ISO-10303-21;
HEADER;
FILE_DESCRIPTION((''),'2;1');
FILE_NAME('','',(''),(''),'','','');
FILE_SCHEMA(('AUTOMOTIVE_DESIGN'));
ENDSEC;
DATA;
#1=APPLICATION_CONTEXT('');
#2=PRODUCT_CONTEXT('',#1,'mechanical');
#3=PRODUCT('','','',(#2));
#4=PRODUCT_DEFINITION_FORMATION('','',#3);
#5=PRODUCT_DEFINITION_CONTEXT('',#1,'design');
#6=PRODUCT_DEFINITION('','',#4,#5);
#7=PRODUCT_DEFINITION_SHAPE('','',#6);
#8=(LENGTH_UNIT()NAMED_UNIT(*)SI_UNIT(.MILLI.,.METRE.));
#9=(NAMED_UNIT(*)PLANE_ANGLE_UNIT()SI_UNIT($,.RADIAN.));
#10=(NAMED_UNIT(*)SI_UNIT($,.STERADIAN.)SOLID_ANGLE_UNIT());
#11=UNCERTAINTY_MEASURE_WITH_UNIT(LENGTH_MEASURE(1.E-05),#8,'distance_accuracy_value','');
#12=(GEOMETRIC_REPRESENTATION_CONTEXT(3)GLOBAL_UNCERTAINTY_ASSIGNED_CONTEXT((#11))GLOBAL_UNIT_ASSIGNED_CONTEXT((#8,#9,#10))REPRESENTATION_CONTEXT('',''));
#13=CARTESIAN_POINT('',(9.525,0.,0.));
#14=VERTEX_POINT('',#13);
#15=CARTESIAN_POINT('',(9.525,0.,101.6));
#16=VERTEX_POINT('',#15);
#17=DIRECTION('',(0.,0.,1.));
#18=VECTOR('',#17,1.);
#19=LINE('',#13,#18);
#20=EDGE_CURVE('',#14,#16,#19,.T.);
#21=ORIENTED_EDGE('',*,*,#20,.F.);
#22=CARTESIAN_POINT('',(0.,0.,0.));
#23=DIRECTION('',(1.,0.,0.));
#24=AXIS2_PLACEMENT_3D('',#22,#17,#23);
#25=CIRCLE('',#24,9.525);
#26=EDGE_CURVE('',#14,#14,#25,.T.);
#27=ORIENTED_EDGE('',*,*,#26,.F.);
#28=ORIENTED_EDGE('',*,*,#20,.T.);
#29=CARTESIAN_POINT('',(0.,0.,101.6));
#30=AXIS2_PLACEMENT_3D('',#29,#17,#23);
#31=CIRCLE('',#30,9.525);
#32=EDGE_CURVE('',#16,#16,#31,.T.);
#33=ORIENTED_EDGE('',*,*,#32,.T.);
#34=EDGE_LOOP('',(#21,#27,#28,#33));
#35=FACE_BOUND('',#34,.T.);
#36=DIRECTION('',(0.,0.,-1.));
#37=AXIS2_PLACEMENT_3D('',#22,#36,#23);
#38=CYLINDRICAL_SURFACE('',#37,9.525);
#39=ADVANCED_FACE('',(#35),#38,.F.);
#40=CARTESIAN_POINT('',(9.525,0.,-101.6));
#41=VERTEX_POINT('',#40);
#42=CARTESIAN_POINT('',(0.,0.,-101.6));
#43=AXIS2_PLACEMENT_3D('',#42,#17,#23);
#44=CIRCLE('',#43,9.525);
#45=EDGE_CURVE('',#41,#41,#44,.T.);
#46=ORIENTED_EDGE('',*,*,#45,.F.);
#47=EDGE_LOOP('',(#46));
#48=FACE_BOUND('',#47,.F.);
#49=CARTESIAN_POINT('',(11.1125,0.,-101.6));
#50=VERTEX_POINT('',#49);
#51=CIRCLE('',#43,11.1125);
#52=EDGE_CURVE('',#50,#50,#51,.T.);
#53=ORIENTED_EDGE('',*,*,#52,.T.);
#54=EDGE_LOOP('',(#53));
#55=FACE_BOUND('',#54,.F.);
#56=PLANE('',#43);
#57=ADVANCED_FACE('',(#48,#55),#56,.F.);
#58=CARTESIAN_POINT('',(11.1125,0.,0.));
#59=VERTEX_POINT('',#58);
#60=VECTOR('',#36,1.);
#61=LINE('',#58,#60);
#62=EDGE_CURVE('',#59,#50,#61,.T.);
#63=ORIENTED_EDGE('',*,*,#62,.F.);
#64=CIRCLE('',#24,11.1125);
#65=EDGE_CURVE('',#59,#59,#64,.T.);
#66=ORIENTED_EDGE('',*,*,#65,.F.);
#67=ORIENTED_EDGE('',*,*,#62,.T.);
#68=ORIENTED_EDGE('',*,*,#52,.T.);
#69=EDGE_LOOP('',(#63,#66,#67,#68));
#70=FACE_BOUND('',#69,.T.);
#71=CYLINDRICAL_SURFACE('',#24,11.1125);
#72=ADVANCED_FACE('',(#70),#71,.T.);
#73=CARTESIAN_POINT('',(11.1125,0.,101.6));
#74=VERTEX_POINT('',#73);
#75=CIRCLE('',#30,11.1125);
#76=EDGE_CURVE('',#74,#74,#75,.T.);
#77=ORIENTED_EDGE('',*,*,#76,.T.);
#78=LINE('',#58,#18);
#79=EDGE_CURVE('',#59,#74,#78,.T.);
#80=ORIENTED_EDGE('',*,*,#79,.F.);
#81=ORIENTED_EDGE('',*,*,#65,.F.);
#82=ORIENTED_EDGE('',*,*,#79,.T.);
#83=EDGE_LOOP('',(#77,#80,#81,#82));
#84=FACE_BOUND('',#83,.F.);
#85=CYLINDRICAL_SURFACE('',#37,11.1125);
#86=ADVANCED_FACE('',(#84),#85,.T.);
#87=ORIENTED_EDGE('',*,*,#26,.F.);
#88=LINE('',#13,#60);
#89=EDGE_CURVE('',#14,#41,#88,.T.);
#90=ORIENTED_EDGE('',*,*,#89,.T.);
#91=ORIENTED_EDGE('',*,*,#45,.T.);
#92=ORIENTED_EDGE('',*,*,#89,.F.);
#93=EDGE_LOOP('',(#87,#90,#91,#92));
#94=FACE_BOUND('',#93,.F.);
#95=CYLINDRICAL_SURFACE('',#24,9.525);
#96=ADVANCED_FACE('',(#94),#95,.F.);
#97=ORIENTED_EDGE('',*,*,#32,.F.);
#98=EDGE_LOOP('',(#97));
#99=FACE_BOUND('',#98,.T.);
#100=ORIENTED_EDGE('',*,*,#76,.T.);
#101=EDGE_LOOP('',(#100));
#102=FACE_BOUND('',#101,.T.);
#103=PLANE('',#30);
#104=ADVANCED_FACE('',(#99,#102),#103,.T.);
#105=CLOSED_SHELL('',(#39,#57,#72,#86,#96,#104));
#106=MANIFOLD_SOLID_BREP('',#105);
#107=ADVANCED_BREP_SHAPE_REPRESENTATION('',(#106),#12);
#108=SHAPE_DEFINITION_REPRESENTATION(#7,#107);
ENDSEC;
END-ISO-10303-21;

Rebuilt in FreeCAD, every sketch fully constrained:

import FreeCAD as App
import Part
import Sketcher
Q = App.Units.Quantity

doc = App.newDocument("Part")
params = doc.addObject("Spreadsheet::Sheet", "Params")
for row, (alias, value) in enumerate([
    ("sketch1_diameter", "0.875 in"),
    ("sketch1_diameter2", "0.75 in"),
    ("pad1_length", "8 in"),
], start=1):
    params.set(f"A{row}", alias)
    params.set(f"B{row}", "=" + value)
    params.setAlias(f"B{row}", alias)

body = doc.addObject("PartDesign::Body", "Body")

# Sketch on XY plane
sketch1 = doc.addObject("Sketcher::SketchObject", "Sketch")
body.addObject(sketch1)
sketch1.AttachmentSupport = (doc.XY_Plane, [""])
sketch1.MapMode = "FlatFace"
sketch1.addGeometry([
    Part.Circle(App.Vector(0, 0, 0), App.Vector(0, 0, 1), 11.1125),
    Part.Circle(App.Vector(0, 0, 0), App.Vector(0, 0, 1), 9.525),
], False)
sketch1.addConstraint([
    Sketcher.Constraint("Coincident", 0, 3, -1, 1),
    Sketcher.Constraint("Coincident", 1, 3, -1, 1),
    Sketcher.Constraint("Diameter", 0, Q("0.875 in")),
    Sketcher.Constraint("Diameter", 1, Q("0.75 in")),
])
sketch1.setExpression("Constraints[2]", "Params.sketch1_diameter")
sketch1.setExpression("Constraints[3]", "Params.sketch1_diameter2")
pad1 = doc.addObject("PartDesign::Pad", "Pad")
body.addObject(pad1)
pad1.Profile = sketch1
pad1.setExpression("Length", "Params.pad1_length")
pad1.Midplane = True

doc.recompute()
